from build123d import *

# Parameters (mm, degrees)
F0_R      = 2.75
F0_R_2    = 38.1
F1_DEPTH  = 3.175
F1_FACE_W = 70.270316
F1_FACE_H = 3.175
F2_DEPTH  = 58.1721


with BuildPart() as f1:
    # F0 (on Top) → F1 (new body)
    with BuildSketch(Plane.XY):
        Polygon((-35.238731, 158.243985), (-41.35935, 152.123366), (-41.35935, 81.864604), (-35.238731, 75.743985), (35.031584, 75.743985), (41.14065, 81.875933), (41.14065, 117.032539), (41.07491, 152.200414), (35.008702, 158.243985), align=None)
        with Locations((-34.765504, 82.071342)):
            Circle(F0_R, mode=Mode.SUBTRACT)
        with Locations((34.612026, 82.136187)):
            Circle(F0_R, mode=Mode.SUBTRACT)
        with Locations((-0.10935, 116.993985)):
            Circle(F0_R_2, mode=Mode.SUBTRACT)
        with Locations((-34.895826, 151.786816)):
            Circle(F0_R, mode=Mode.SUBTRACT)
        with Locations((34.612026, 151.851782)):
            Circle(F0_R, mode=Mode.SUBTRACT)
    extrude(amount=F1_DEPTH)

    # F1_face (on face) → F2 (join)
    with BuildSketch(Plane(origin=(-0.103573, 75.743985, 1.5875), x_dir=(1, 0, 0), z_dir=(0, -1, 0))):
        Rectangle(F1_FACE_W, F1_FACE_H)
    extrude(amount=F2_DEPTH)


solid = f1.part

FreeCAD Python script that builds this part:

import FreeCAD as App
import Part
import Sketcher
Q = App.Units.Quantity


def add_polygon(sketch, points):
    """Adds a closed chain of lines whose ends are joined by coincident constraints."""
    first, n = sketch.GeometryCount, len(points)
    for a, b in zip(points, points[1:] + points[:1]):
        sketch.addGeometry(Part.LineSegment(App.Vector(*a, 0), App.Vector(*b, 0)), False)
    for i in range(n):
        sketch.addConstraint(Sketcher.Constraint("Coincident", first + i, 2, first + (i + 1) % n, 1))

doc = App.newDocument("Part")
body = doc.addObject("PartDesign::Body", "Body")

# Sketch on XY plane
sketch1 = doc.addObject("Sketcher::SketchObject", "Sketch")
body.addObject(sketch1)
sketch1.AttachmentSupport = (doc.XY_Plane, [""])
sketch1.MapMode = "FlatFace"
add_polygon(sketch1, [(-35.2, 158.2), (-41.4, 152.1), (-41.4, 81.9), (-35.2, 75.7), (35, 75.7), (41.1, 81.9), (41.1, 117), (41.1, 152.2), (35, 158.2)])  # lines 0-8
sketch1.addGeometry(Part.Circle(App.Vector(-34.8, 82.1, 0), App.Vector(0, 0, 1), 2.8), False)  # 9
sketch1.addGeometry(Part.Circle(App.Vector(34.6, 82.1, 0), App.Vector(0, 0, 1), 2.8), False)  # 10
sketch1.addGeometry(Part.Circle(App.Vector(-34.9, 151.8, 0), App.Vector(0, 0, 1), 2.8), False)  # 11
sketch1.addGeometry(Part.Circle(App.Vector(-0.1, 117, 0), App.Vector(0, 0, 1), 38.1), False)  # 12
sketch1.addGeometry(Part.Circle(App.Vector(34.6, 151.9, 0), App.Vector(0, 0, 1), 2.8), False)  # 13
sketch1.addConstraint(Sketcher.Constraint("Vertical", 1))
sketch1.addConstraint(Sketcher.Constraint("Horizontal", 3))
sketch1.addConstraint(Sketcher.Constraint("Vertical", 5))
sketch1.addConstraint(Sketcher.Constraint("Horizontal", 8))
sketch1.addConstraint(Sketcher.Constraint("Equal", 9, 10))
sketch1.addConstraint(Sketcher.Constraint("Equal", 10, 11))
sketch1.addConstraint(Sketcher.Constraint("Equal", 11, 13))
sketch1.addConstraint(Sketcher.Constraint("Perpendicular", 0, 2))
sketch1.addConstraint(Sketcher.Constraint("Perpendicular", 4, 7))
sketch1.addConstraint(Sketcher.Constraint("Vertical", 10, 3, 13, 3))
sketch1.addConstraint(Sketcher.Constraint("Vertical", 2, 2, 8, 2))
sketch1.addConstraint(Sketcher.Constraint("Equal", 0, 2))
sketch1.addConstraint(Sketcher.Constraint("Diameter", 12, Q("3 in")))
sketch1.addConstraint(Sketcher.Constraint("Diameter", 9, 5.5))
sketch1.addConstraint(Sketcher.Constraint("DistanceX", 2, 2, 11, 3, Q("0.0135002 in")))
sketch1.addConstraint(Sketcher.Constraint("DistanceX", 0, 2, 12, 3, 41.25))
sketch1.addConstraint(Sketcher.Constraint("DistanceY", 2, 2, 12, 3, 41.25))
sketch1.addConstraint(Sketcher.Constraint("DistanceX", 12, 3, 4, 2, 41.25))
sketch1.addConstraint(Sketcher.Constraint("DistanceY", 12, 3, 7, 2, 41.25))
sketch1.addConstraint(Sketcher.Constraint("Distance", 4, 8.655719))
sketch1.addConstraint(Sketcher.Constraint("Distance", 7, 8.562922))
sketch1.addConstraint(Sketcher.Constraint("DistanceX", 3, 1, 3, 2, 70.270315))
sketch1.addConstraint(Sketcher.Constraint("DistanceX", 8, 2, 8, 1, 70.247433))
sketch1.addConstraint(Sketcher.Constraint("DistanceY", 1, 2, 1, 1, 70.258762))
sketch1.addConstraint(Sketcher.Constraint("DistanceY", 5, 1, 5, 2, 35.156606))
sketch1.addConstraint(Sketcher.Constraint("DistanceY", -1, 1, 9, 3, 82.071342))
sketch1.addConstraint(Sketcher.Constraint("DistanceX", 12, 3, -1, 1, 0.10935))
sketch1.addConstraint(Sketcher.Constraint("DistanceY", -1, 1, 13, 3, 151.851782))
sketch1.addConstraint(Sketcher.Constraint("DistanceY", -1, 1, 5, 2, 117.032539))
sketch1.addConstraint(Sketcher.Constraint("DistanceX", 9, 3, 10, 3, 69.37753))
sketch1.addConstraint(Sketcher.Constraint("DistanceX", 11, 3, 9, 3, 0.130322))
sketch1.addConstraint(Sketcher.Constraint("DistanceY", 10, 3, 11, 3, 69.650629))
sketch1.addConstraint(Sketcher.Constraint("DistanceY", 12, 3, 11, 3, 34.792831))
pad1 = doc.addObject("PartDesign::Pad", "Pad")
body.addObject(pad1)
pad1.Profile = sketch1
pad1.Length = Q("0.125 in")

# Sketch on XZ plane
sketch2 = doc.addObject("Sketcher::SketchObject", "Sketch001")
body.addObject(sketch2)
sketch2.AttachmentSupport = (doc.XZ_Plane, [""])
sketch2.MapMode = "FlatFace"
sketch2.AttachmentOffset = App.Placement(App.Vector(0, 0, -75.743985), App.Rotation())
add_polygon(sketch2, [(-35.2, 3.2), (-35.2, 0), (35, 0), (35, 3.2)])  # lines 0-3
sketch2.addConstraint(Sketcher.Constraint("Vertical", 0))
sketch2.addConstraint(Sketcher.Constraint("Horizontal", 1))
sketch2.addConstraint(Sketcher.Constraint("Vertical", 2))
sketch2.addConstraint(Sketcher.Constraint("Horizontal", 3))
sketch2.addConstraint(Sketcher.Constraint("PointOnObject", 0, 2, -1))
sketch2.addConstraint(Sketcher.Constraint("DistanceY", 0, 2, 0, 1, Q("0.125 in")))
sketch2.addConstraint(Sketcher.Constraint("DistanceX", 1, 1, 1, 2, 70.270316))
sketch2.addConstraint(Sketcher.Constraint("DistanceX", 0, 2, -1, 1, 35.238731))
pad2 = doc.addObject("PartDesign::Pad", "Pad001")
body.addObject(pad2)
pad2.Profile = sketch2
pad2.Length = 58.1721

doc.recompute()
